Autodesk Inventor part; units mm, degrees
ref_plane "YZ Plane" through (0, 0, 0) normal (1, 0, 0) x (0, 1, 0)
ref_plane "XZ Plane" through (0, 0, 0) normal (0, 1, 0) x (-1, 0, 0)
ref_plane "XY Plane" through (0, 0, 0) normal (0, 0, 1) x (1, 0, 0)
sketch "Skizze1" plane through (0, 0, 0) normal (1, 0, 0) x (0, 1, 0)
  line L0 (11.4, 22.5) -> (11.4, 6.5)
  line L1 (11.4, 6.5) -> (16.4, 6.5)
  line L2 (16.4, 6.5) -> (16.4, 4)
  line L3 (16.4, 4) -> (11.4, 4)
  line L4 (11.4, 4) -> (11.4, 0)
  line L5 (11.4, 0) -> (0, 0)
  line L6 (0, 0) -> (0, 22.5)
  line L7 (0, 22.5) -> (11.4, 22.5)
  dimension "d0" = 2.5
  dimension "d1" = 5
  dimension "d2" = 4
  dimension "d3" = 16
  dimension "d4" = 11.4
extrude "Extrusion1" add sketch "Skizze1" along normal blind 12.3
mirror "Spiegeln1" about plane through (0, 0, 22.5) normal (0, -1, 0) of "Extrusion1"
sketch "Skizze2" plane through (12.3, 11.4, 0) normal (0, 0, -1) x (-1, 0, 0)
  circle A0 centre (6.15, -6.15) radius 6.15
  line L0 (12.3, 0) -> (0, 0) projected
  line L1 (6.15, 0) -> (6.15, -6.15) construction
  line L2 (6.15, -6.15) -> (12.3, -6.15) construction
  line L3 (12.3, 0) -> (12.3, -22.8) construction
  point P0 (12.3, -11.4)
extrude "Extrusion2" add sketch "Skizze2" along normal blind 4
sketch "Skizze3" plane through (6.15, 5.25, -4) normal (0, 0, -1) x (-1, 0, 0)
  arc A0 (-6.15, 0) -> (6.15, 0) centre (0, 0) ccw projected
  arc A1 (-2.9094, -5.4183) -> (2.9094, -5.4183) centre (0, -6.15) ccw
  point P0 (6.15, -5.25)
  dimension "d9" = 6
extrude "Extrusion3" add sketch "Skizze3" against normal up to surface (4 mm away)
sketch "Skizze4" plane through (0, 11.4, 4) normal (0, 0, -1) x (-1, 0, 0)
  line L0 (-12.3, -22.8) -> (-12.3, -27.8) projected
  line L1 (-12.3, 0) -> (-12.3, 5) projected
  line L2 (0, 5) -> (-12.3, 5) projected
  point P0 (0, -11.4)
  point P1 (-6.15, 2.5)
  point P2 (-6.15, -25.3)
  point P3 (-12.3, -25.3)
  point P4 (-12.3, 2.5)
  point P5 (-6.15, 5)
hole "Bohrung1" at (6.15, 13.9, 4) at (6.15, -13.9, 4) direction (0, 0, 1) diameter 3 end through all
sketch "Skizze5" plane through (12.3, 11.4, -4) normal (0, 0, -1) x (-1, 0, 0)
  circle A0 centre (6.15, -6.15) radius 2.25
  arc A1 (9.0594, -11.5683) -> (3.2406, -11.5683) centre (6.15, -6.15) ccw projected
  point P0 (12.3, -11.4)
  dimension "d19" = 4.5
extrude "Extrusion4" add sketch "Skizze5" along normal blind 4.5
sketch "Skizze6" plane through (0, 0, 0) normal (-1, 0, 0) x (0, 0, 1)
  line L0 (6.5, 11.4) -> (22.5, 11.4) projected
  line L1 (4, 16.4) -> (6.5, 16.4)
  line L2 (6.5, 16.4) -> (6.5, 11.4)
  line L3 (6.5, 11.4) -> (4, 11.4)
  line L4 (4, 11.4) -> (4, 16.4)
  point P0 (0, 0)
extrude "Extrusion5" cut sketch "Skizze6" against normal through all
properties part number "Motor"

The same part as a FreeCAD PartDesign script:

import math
import FreeCAD as App
import Part
import Sketcher
from FreeCAD import Vector
Q = App.Units.Quantity


def add_polygon(sketch, points):
    """Adds a closed chain of lines whose ends are joined by coincident constraints."""
    first, n = sketch.GeometryCount, len(points)
    for a, b in zip(points, points[1:] + points[:1]):
        sketch.addGeometry(Part.LineSegment(App.Vector(*a, 0), App.Vector(*b, 0)), False)
    for i in range(n):
        sketch.addConstraint(Sketcher.Constraint("Coincident", first + i, 2, first + (i + 1) % n, 1))

doc = App.newDocument("Part")
body = doc.addObject("PartDesign::Body", "Body")

# Sketch on YZ plane
sketch1 = body.newObject("Sketcher::SketchObject", "Sketch")
sketch1.AttachmentSupport = (doc.getObject("YZ_Plane"), [""])
sketch1.MapMode = "FlatFace"
add_polygon(sketch1, [(11.4, 6.5), (11.4, 22.5), (0, 22.5), (0, 0), (11.4, 0), (11.4, 4), (16.4, 4), (16.4, 6.5)])  # lines 0-7
sketch1.addConstraint([
    Sketcher.Constraint("Vertical", 0),
    Sketcher.Constraint("Horizontal", 1),
    Sketcher.Constraint("Vertical", 2),
    Sketcher.Constraint("Horizontal", 3),
    Sketcher.Constraint("Vertical", 4),
    Sketcher.Constraint("Horizontal", 5),
    Sketcher.Constraint("Vertical", 6),
    Sketcher.Constraint("Horizontal", 7),
    Sketcher.Constraint("Coincident", 2, 2, -1, 1),
    Sketcher.Constraint("Vertical", 0, 2, 3, 2),
    Sketcher.Constraint("DistanceX", 5, 1, 5, 2, Q("5 mm")),
    Sketcher.Constraint("DistanceY", 0, 1, 0, 2, Q("16 mm")),
    Sketcher.Constraint("DistanceY", 4, 1, 4, 2, Q("4 mm")),
    Sketcher.Constraint("DistanceX", 1, 2, 1, 1, Q("11.4 mm")),
    Sketcher.Constraint("DistanceY", 6, 1, 6, 2, Q("2.5 mm")),
])
pad1 = body.newObject("PartDesign::Pad", "Pad")
pad1.Profile = sketch1
pad1.Length = 12.3
doc.recompute()

mirrored = body.newObject("PartDesign::Mirrored", "Mirrored")
mirrored.Originals = [pad1]
mirrored.MirrorPlane = (doc.getObject("XZ_Plane"), [""])
body.Tip = mirrored

# Sketch on XY plane
sketch2 = body.newObject("Sketcher::SketchObject", "Sketch001")
sketch2.AttachmentSupport = (doc.getObject("XY_Plane"), [""])
sketch2.MapMode = "FlatFace"
sketch2.addGeometry(Part.Circle(Vector(6, 5, 0), Vector(0, 0, 1), 6), False)
sketch2.addConstraint([
    Sketcher.Constraint("Diameter", 0, Q("12.3 mm")),
    Sketcher.Constraint("DistanceX", -1, 1, 0, 3, Q("6.15 mm")),
    Sketcher.Constraint("DistanceY", -1, 1, 0, 3, Q("5.25 mm")),
])
pad2 = body.newObject("PartDesign::Pad", "Pad001")
pad2.Profile = sketch2
pad2.Length = 4
pad2.Reversed = True

# Sketch on XY plane
sketch3 = body.newObject("Sketcher::SketchObject", "Sketch002")
sketch3.AttachmentSupport = (doc.getObject("XY_Plane"), [""])
sketch3.MapMode = "FlatFace"
sketch3.AttachmentOffset = App.Placement(Vector(0, 0, -4), App.Rotation())
sketch3.addGeometry([
    Part.ArcOfCircle(Part.Circle(Vector(6.2, 5.2, 0), Vector(0, 0, 1), 6.2), math.radians(-118), math.radians(-62)),
    Part.ArcOfCircle(Part.Circle(Vector(6.2, -0.9, 0), Vector(0, 0, 1), 3), math.radians(166), math.radians(374)),
], False)
sketch3.addConstraint([
    Sketcher.Constraint("Coincident", 0, 1, 1, 1),
    Sketcher.Constraint("Coincident", 1, 2, 0, 2),
    Sketcher.Constraint("Horizontal", 0, 1, 1, 2),
    Sketcher.Constraint("Radius", 1, Q("3 mm")),
    Sketcher.Constraint("Radius", 0, Q("6.15 mm")),
    Sketcher.Constraint("DistanceY", 1, 3, -1, 1, Q("0.9 mm")),
    Sketcher.Constraint("DistanceX", -1, 1, 0, 3, Q("6.15 mm")),
    Sketcher.Constraint("DistanceY", -1, 1, 0, 3, Q("5.25 mm")),
])
pad3 = body.newObject("PartDesign::Pad", "Pad002")
pad3.Profile = sketch3
pad3.Length = 4

# Sketch on XY plane
sketch4 = body.newObject("Sketcher::SketchObject", "Sketch003")
sketch4.AttachmentSupport = (doc.getObject("XY_Plane"), [""])
sketch4.MapMode = "FlatFace"
sketch4.AttachmentOffset = App.Placement(Vector(0, 0, 4), App.Rotation())
sketch4.addGeometry([
    Part.Circle(Vector(6.2, 13.9, 0), Vector(0, 0, 1), 1.5),
    Part.Circle(Vector(6.2, -13.9, 0), Vector(0, 0, 1), 1.5),
], False)
sketch4.addConstraint([
    Sketcher.Constraint("Equal", 0, 1),
    Sketcher.Constraint("Symmetric", 0, 3, 1, 3, -1),
    Sketcher.Constraint("Diameter", 0, Q("3 mm")),
    Sketcher.Constraint("DistanceY", -1, 1, 0, 3, Q("13.9 mm")),
    Sketcher.Constraint("DistanceX", -1, 1, 0, 3, Q("6.15 mm")),
])
doc.recompute()
hole = body.newObject("PartDesign::Hole", "Hole")
hole.Profile = sketch4
hole.ThreadType = "None"
hole.Diameter = 3
hole.DepthType = "ThroughAll"
hole.Reversed = True

# Sketch on XY plane
sketch5 = body.newObject("Sketcher::SketchObject", "Sketch004")
sketch5.AttachmentSupport = (doc.getObject("XY_Plane"), [""])
sketch5.MapMode = "FlatFace"
sketch5.AttachmentOffset = App.Placement(Vector(0, 0, -4), App.Rotation())
sketch5.addGeometry(Part.Circle(Vector(6.2, 5.2, 0), Vector(0, 0, 1), 2.2), False)
sketch5.addConstraint([
    Sketcher.Constraint("Diameter", 0, Q("4.5 mm")),
    Sketcher.Constraint("DistanceX", -1, 1, 0, 3, Q("6.15 mm")),
    Sketcher.Constraint("DistanceY", -1, 1, 0, 3, Q("5.25 mm")),
])
pad4 = body.newObject("PartDesign::Pad", "Pad003")
pad4.Profile = sketch5
pad4.Length = 4.5
pad4.Reversed = True

# Sketch on YZ plane
sketch6 = body.newObject("Sketcher::SketchObject", "Sketch005")
sketch6.AttachmentSupport = (doc.getObject("YZ_Plane"), [""])
sketch6.MapMode = "FlatFace"
add_polygon(sketch6, [(16.4, 6.5), (16.4, 4), (11.4, 4), (11.4, 6.5)])  # lines 0-3
sketch6.addConstraint([
    Sketcher.Constraint("Vertical", 0),
    Sketcher.Constraint("Horizontal", 1),
    Sketcher.Constraint("Vertical", 2),
    Sketcher.Constraint("Horizontal", 3),
    Sketcher.Constraint("DistanceX", 1, 2, 1, 1, Q("5 mm")),
    Sketcher.Constraint("DistanceY", 0, 2, 0, 1, Q("2.5 mm")),
    Sketcher.Constraint("DistanceY", -1, 1, 0, 2, Q("4 mm")),
    Sketcher.Constraint("DistanceX", -1, 1, 0, 2, Q("16.4 mm")),
])
pocket1 = body.newObject("PartDesign::Pocket", "Pocket")
pocket1.Profile = sketch6
pocket1.Type = "ThroughAll"
pocket1.Reversed = True

doc.recompute()
